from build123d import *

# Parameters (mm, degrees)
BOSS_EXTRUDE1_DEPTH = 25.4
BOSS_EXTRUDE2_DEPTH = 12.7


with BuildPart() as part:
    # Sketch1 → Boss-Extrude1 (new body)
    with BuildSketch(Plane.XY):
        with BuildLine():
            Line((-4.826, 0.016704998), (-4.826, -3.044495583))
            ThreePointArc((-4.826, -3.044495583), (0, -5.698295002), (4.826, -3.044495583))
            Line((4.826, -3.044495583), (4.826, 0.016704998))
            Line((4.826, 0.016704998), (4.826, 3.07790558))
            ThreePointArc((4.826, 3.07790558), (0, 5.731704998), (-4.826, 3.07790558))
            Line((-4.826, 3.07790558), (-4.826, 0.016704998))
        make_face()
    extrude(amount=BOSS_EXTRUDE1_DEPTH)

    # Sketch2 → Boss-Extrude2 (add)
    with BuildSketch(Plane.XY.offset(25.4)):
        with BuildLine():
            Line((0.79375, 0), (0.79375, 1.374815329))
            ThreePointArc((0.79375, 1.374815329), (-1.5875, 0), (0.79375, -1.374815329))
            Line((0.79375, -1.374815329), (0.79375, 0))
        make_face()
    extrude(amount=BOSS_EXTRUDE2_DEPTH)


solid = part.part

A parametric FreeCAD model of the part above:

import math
import FreeCAD as App
import Part
import Sketcher
Q = App.Units.Quantity

doc = App.newDocument("Part")
body = doc.addObject("PartDesign::Body", "Body")

# Sketch on XY plane
sketch1 = body.newObject("Sketcher::SketchObject", "Sketch")
sketch1.AttachmentSupport = (doc.getObject("XY_Plane"), [""])
sketch1.MapMode = "FlatFace"
sketch1.addGeometry(Part.ArcOfCircle(Part.Circle(App.Vector(0, 0.016705, 0), App.Vector(0, 0, 1), 5.715), math.radians(-147.612461), math.radians(-32.387539)), False)
sketch1.addGeometry(Part.LineSegment(App.Vector(4.826, -3.044496, 0), App.Vector(4.826, 3.077906, 0)), False)
sketch1.addGeometry(Part.ArcOfCircle(Part.Circle(App.Vector(0, 0.016705, 0), App.Vector(0, 0, 1), 5.715), math.radians(32.387539), math.radians(147.612461)), False)
sketch1.addGeometry(Part.LineSegment(App.Vector(-4.826, 3.077906, 0), App.Vector(-4.826, -3.044496, 0)), False)
sketch1.addConstraint(Sketcher.Constraint("Coincident", 0, 2, 1, 1))
sketch1.addConstraint(Sketcher.Constraint("Coincident", 1, 2, 2, 1))
sketch1.addConstraint(Sketcher.Constraint("Coincident", 2, 2, 3, 1))
sketch1.addConstraint(Sketcher.Constraint("Coincident", 3, 2, 0, 1))
sketch1.addConstraint(Sketcher.Constraint("Vertical", 1))
sketch1.addConstraint(Sketcher.Constraint("Vertical", 3))
sketch1.addConstraint(Sketcher.Constraint("Coincident", 2, 3, 0, 3))
sketch1.addConstraint(Sketcher.Constraint("Equal", 0, 2))
sketch1.addConstraint(Sketcher.Constraint("Symmetric", 1, 2, 2, 2, -2))
sketch1.addConstraint(Sketcher.Constraint("Radius", 0, Q("0.225 in")))
sketch1.addConstraint(Sketcher.Constraint("DistanceX", -1, 1, 0, 2, Q("0.19 in")))
sketch1.addConstraint(Sketcher.Constraint("DistanceY", -1, 1, 0, 3, Q("0.016705 mm")))
pad1 = body.newObject("PartDesign::Pad", "Pad")
pad1.Profile = sketch1
pad1.Length = Q("1 in")

# Sketch on XY plane
sketch2 = body.newObject("Sketcher::SketchObject", "Sketch001")
sketch2.AttachmentSupport = (doc.getObject("XY_Plane"), [""])
sketch2.MapMode = "FlatFace"
sketch2.AttachmentOffset = App.Placement(App.Vector(0, 0, 1 * 25.4), App.Rotation())
sketch2.addGeometry(Part.ArcOfCircle(Part.Circle(App.Vector(0, 0, 0), App.Vector(0, 0, 1), 1.5875), math.radians(60), math.radians(300)), False)
sketch2.addGeometry(Part.LineSegment(App.Vector(0.79375, -1.374815, 0), App.Vector(0.79375, 1.374815, 0)), False)
sketch2.addConstraint(Sketcher.Constraint("Coincident", 0, 1, 1, 2))
sketch2.addConstraint(Sketcher.Constraint("Coincident", 1, 1, 0, 2))
sketch2.addConstraint(Sketcher.Constraint("Vertical", 1))
sketch2.addConstraint(Sketcher.Constraint("Coincident", 0, 3, -1, 1))
sketch2.addConstraint(Sketcher.Constraint("Radius", 0, Q("0.0625 in")))
sketch2.addConstraint(Sketcher.Constraint("DistanceX", -1, 1, 0, 1, Q("0.03125 in")))
pad2 = body.newObject("PartDesign::Pad", "Pad001")
pad2.Profile = sketch2
pad2.Length = Q("0.5 in")

doc.recompute()
